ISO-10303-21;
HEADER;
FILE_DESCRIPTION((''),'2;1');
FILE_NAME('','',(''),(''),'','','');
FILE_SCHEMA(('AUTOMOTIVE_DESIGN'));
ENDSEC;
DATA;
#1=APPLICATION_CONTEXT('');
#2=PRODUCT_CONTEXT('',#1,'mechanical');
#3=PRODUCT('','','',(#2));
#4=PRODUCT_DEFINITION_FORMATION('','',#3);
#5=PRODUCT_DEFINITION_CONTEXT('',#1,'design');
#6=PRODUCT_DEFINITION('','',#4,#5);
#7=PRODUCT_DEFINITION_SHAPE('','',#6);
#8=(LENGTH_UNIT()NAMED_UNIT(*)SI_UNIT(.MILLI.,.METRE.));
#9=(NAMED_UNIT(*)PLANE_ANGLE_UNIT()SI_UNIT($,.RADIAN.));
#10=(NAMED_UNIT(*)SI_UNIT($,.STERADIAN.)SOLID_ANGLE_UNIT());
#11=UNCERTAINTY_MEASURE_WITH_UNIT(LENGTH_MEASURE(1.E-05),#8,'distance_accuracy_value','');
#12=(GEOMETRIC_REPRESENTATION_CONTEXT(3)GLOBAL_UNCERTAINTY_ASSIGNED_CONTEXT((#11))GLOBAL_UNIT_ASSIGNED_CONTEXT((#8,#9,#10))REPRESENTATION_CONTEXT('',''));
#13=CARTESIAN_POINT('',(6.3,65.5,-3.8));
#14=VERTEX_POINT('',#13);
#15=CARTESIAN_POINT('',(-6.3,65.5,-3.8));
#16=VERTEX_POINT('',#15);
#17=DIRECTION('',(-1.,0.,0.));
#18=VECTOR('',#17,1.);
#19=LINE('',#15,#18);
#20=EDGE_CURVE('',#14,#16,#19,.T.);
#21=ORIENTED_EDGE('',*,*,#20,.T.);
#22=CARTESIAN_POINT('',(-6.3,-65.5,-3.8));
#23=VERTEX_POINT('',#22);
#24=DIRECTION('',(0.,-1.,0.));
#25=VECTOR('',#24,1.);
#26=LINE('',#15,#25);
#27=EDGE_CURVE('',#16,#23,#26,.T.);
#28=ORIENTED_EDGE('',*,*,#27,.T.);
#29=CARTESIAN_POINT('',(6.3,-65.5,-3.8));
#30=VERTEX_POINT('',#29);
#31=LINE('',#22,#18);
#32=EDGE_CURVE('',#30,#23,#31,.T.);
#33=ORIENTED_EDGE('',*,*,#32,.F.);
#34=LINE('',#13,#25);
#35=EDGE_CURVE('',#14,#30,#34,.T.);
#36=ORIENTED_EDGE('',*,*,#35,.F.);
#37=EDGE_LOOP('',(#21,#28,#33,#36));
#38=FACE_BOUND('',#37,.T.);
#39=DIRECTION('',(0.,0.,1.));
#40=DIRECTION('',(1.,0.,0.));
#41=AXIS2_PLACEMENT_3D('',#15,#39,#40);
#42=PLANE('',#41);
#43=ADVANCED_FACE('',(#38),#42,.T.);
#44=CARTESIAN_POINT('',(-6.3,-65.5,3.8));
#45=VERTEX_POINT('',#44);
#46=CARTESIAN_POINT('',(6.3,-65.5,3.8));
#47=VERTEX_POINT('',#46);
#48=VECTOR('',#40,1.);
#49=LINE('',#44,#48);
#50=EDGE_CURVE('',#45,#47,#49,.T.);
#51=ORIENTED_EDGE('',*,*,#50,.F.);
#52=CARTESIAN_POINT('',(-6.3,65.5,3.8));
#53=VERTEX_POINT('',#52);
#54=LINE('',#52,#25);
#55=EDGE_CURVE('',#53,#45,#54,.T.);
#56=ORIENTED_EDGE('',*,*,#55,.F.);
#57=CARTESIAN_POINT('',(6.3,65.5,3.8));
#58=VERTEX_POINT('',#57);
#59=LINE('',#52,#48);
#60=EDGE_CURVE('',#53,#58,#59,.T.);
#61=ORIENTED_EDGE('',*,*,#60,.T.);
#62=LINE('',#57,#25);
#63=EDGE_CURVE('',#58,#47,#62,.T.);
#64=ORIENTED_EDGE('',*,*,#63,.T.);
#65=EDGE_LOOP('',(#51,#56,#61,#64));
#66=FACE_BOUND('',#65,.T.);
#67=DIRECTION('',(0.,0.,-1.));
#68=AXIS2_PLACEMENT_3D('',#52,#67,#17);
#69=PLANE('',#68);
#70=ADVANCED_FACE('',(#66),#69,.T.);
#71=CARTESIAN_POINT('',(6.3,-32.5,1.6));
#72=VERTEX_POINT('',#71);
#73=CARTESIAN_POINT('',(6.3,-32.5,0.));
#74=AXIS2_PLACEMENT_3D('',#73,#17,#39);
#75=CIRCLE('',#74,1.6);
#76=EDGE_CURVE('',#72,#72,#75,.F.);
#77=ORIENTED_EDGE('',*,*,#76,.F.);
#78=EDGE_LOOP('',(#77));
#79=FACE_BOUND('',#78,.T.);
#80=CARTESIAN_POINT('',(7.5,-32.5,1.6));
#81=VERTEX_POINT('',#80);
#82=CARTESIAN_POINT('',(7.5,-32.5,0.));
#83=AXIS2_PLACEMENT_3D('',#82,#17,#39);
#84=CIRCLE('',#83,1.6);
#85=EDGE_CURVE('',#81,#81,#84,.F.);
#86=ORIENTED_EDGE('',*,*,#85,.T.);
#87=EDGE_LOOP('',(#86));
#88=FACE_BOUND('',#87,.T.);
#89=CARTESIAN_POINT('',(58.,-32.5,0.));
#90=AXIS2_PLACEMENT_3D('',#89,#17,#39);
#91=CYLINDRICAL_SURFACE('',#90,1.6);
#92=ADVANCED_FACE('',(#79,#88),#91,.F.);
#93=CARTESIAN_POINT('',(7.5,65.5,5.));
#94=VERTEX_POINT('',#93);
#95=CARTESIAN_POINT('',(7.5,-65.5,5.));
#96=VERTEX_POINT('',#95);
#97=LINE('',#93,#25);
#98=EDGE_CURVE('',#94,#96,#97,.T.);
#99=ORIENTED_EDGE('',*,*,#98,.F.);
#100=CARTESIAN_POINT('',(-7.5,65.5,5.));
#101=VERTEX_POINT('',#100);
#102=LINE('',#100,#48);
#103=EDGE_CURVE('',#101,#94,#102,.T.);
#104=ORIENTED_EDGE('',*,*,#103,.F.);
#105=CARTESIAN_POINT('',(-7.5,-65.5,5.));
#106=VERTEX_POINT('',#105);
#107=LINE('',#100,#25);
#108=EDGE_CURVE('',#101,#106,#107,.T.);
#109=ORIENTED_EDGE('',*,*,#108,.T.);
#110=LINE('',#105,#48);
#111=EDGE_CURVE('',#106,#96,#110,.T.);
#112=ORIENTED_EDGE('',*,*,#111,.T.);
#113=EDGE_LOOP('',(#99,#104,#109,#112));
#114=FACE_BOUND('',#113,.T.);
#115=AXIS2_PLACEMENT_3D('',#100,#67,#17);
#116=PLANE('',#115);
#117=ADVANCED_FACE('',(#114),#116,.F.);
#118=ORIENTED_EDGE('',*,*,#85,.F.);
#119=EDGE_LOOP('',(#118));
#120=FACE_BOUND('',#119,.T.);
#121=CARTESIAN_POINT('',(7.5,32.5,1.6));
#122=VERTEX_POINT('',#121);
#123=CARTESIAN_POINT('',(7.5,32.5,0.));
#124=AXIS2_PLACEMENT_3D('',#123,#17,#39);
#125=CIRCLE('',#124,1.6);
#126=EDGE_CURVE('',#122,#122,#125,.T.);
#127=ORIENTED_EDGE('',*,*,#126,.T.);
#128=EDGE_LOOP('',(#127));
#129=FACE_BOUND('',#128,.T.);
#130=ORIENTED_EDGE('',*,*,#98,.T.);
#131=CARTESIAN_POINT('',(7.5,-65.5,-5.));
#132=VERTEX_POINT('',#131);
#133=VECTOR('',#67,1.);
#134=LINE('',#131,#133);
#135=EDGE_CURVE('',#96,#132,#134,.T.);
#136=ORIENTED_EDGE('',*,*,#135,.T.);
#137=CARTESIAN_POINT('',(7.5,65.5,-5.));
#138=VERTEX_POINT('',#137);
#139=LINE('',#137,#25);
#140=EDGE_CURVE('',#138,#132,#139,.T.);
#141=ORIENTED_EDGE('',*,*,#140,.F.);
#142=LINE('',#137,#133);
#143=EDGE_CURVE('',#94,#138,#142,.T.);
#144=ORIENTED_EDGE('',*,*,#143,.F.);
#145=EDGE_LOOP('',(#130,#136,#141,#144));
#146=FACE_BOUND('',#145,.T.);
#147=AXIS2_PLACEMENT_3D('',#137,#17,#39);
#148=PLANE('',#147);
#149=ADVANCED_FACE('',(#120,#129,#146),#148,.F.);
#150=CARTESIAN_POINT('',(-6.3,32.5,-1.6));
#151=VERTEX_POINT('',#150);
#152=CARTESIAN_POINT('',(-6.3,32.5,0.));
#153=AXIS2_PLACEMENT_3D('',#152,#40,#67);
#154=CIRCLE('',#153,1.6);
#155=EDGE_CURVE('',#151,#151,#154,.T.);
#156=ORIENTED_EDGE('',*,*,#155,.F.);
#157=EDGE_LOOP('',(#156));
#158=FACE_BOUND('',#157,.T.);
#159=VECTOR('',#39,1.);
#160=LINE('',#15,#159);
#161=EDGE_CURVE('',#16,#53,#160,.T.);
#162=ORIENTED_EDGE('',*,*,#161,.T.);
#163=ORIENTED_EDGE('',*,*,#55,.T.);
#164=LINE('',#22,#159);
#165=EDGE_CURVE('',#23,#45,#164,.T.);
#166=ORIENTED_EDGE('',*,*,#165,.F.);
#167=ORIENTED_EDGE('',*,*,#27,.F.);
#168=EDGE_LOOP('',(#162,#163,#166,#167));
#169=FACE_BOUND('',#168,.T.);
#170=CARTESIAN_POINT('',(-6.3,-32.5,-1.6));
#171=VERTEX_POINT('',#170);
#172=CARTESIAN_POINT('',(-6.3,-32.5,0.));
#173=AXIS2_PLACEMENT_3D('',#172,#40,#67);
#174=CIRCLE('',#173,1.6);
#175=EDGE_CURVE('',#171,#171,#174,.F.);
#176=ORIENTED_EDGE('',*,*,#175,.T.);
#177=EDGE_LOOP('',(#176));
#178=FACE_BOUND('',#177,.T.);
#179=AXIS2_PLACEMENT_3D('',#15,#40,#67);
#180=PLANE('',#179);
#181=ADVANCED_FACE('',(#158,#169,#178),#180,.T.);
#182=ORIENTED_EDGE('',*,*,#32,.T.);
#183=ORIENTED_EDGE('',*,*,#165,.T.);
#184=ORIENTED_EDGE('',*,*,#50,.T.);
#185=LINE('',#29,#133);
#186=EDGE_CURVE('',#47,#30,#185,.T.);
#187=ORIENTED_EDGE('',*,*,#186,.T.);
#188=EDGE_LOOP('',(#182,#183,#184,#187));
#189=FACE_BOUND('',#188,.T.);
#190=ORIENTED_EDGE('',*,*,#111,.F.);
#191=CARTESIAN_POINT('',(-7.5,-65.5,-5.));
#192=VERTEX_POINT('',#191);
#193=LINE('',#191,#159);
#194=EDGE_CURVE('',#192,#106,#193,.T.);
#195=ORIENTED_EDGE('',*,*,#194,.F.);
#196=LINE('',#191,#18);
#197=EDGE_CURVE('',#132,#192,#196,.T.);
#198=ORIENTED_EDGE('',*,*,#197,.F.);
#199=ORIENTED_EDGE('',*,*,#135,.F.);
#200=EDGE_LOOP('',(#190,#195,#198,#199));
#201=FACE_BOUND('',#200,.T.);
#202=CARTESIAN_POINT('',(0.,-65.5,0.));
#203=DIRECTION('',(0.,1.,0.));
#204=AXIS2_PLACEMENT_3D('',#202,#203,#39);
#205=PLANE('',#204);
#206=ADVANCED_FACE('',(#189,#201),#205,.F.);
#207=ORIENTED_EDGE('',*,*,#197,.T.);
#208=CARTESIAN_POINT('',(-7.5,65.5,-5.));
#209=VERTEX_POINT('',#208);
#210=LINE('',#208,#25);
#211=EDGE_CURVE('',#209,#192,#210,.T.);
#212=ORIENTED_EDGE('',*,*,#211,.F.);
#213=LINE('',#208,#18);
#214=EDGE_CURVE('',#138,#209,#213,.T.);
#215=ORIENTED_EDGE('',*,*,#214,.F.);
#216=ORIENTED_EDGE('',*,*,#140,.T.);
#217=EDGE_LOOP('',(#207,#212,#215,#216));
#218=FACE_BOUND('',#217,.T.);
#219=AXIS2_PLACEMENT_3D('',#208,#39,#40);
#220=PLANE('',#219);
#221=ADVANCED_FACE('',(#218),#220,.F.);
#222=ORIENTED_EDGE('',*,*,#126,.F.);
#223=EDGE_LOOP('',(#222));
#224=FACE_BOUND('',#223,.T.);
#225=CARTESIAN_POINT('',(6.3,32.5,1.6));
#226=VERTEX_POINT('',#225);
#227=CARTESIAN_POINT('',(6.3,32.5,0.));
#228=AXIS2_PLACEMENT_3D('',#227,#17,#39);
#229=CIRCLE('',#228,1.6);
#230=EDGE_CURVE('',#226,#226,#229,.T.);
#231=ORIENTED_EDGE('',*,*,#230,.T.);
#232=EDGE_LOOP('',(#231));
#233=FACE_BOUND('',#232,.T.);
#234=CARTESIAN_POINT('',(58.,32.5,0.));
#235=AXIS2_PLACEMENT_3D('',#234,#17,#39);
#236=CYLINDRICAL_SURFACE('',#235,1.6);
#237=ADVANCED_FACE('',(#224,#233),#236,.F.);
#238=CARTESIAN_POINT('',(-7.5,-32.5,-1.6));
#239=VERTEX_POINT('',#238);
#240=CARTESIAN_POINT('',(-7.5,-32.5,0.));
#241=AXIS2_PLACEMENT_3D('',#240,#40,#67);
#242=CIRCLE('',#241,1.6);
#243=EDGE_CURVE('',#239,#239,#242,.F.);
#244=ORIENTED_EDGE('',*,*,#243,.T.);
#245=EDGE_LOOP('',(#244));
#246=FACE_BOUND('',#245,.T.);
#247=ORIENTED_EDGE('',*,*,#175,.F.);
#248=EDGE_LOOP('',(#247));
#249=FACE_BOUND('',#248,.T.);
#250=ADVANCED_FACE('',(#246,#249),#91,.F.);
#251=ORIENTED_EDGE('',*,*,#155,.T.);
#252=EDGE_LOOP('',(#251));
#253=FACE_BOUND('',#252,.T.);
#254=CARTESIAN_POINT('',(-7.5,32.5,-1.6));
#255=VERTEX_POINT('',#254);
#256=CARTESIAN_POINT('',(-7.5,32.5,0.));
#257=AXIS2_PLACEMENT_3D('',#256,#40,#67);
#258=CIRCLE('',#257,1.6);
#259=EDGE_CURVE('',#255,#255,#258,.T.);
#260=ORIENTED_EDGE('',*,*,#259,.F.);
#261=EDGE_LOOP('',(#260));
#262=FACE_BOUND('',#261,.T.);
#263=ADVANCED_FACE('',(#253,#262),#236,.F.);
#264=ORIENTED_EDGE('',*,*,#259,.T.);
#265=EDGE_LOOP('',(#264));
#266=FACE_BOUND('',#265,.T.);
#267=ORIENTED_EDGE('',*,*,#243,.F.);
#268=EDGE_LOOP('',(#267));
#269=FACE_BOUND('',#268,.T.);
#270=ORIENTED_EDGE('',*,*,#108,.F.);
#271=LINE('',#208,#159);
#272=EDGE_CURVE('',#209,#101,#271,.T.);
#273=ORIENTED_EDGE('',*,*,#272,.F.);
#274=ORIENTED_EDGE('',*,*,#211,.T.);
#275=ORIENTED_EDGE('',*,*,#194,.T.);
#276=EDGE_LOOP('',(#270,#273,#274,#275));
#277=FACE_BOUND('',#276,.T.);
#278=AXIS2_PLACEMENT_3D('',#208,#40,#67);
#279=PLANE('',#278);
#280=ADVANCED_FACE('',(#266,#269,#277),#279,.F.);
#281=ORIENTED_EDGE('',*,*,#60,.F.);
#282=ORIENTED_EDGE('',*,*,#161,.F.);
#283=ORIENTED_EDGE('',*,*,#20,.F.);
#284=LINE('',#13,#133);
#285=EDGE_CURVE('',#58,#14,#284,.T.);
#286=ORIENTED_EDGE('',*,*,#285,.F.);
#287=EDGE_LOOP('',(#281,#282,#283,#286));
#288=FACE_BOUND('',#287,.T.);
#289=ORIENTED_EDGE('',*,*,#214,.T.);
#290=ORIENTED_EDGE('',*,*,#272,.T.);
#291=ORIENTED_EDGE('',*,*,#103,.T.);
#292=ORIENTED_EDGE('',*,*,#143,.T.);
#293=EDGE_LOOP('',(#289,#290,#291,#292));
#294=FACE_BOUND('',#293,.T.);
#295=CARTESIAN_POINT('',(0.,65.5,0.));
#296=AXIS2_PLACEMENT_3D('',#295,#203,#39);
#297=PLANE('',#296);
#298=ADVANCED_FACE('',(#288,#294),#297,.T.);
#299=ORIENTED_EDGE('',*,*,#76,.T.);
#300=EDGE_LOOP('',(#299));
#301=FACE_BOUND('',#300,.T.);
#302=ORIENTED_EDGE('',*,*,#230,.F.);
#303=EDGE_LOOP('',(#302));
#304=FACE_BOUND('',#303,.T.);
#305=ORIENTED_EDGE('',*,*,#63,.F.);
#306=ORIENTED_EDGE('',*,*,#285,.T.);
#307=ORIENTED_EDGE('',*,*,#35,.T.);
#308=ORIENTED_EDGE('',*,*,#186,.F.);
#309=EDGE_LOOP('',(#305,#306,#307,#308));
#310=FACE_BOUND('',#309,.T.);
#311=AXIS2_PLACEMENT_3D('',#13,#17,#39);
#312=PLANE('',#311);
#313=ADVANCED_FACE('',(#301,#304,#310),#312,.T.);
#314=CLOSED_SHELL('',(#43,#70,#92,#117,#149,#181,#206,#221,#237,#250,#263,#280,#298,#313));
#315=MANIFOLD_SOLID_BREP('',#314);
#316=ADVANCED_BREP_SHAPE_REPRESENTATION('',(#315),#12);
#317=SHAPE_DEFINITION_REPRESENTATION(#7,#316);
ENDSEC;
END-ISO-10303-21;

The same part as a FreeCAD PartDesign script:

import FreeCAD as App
import Part
import Sketcher
Q = App.Units.Quantity


def add_polygon(sketch, points):
    """Adds a closed chain of lines whose ends are joined by coincident constraints."""
    first, n = sketch.GeometryCount, len(points)
    for a, b in zip(points, points[1:] + points[:1]):
        sketch.addGeometry(Part.LineSegment(App.Vector(*a, 0), App.Vector(*b, 0)), False)
    for i in range(n):
        sketch.addConstraint(Sketcher.Constraint("Coincident", first + i, 2, first + (i + 1) % n, 1))

doc = App.newDocument("Part")
body = doc.addObject("PartDesign::Body", "Body")

sketch1 = body.newObject("Sketcher::SketchObject", "Sketch")
sketch1.AttachmentSupport = (doc.getObject("XZ_Plane"), [""])
sketch1.MapMode = "FlatFace"
add_polygon(sketch1, [(-7.5, -5), (-7.5, 5), (7.5, 5), (7.5, -5)])
add_polygon(sketch1, [(6.3, 3.8), (-6.3, 3.8), (-6.3, -3.8), (6.3, -3.8)])
sketch1.addConstraint([
    Sketcher.Constraint("Vertical", 0),
    Sketcher.Constraint("Horizontal", 1),
    Sketcher.Constraint("Vertical", 2),
    Sketcher.Constraint("Horizontal", 3),
    Sketcher.Constraint("Horizontal", 4),
    Sketcher.Constraint("Vertical", 5),
    Sketcher.Constraint("Horizontal", 6),
    Sketcher.Constraint("Vertical", 7),
    Sketcher.Constraint("Symmetric", 0, 2, 2, 2, -1, 1),
    Sketcher.Constraint("Symmetric", 4, 2, 6, 2, -1, 1),
    Sketcher.Constraint("DistanceX", 1, 1, 1, 2, Q("15 mm")),
    Sketcher.Constraint("DistanceY", 0, 1, 0, 2, Q("10 mm")),
    Sketcher.Constraint("DistanceX", 4, 2, 4, 1, Q("12.6 mm")),
    Sketcher.Constraint("DistanceY", 5, 2, 5, 1, Q("7.6 mm")),
])
pad1 = body.newObject("PartDesign::Pad", "Pad")
pad1.Profile = sketch1
pad1.Length = 131
pad1.Midplane = True

sketch2 = body.newObject("Sketcher::SketchObject", "Sketch001")
sketch2.AttachmentSupport = (doc.getObject("YZ_Plane"), [""])
sketch2.MapMode = "FlatFace"
sketch2.AttachmentOffset = App.Placement(App.Vector(0, 0, -7.5), App.Rotation())
sketch2.addGeometry(Part.Circle(App.Vector(32.5, 0, 0), App.Vector(0, 0, 1), 1.6), False)
sketch2.addConstraint([
    Sketcher.Constraint("PointOnObject", 0, 3, -1),
    Sketcher.Constraint("Diameter", 0, Q("3.2 mm")),
    Sketcher.Constraint("DistanceX", -1, 1, 0, 3, Q("32.5 mm")),
])
pocket1 = body.newObject("PartDesign::Pocket", "Pocket")
pocket1.Profile = sketch2
pocket1.Length = 131
pocket1.Midplane = True
doc.recompute()

mirrored = body.newObject("PartDesign::Mirrored", "Mirrored")
mirrored.Originals = [pocket1]
mirrored.MirrorPlane = (doc.getObject("XZ_Plane"), [""])
body.Tip = mirrored

doc.recompute()
